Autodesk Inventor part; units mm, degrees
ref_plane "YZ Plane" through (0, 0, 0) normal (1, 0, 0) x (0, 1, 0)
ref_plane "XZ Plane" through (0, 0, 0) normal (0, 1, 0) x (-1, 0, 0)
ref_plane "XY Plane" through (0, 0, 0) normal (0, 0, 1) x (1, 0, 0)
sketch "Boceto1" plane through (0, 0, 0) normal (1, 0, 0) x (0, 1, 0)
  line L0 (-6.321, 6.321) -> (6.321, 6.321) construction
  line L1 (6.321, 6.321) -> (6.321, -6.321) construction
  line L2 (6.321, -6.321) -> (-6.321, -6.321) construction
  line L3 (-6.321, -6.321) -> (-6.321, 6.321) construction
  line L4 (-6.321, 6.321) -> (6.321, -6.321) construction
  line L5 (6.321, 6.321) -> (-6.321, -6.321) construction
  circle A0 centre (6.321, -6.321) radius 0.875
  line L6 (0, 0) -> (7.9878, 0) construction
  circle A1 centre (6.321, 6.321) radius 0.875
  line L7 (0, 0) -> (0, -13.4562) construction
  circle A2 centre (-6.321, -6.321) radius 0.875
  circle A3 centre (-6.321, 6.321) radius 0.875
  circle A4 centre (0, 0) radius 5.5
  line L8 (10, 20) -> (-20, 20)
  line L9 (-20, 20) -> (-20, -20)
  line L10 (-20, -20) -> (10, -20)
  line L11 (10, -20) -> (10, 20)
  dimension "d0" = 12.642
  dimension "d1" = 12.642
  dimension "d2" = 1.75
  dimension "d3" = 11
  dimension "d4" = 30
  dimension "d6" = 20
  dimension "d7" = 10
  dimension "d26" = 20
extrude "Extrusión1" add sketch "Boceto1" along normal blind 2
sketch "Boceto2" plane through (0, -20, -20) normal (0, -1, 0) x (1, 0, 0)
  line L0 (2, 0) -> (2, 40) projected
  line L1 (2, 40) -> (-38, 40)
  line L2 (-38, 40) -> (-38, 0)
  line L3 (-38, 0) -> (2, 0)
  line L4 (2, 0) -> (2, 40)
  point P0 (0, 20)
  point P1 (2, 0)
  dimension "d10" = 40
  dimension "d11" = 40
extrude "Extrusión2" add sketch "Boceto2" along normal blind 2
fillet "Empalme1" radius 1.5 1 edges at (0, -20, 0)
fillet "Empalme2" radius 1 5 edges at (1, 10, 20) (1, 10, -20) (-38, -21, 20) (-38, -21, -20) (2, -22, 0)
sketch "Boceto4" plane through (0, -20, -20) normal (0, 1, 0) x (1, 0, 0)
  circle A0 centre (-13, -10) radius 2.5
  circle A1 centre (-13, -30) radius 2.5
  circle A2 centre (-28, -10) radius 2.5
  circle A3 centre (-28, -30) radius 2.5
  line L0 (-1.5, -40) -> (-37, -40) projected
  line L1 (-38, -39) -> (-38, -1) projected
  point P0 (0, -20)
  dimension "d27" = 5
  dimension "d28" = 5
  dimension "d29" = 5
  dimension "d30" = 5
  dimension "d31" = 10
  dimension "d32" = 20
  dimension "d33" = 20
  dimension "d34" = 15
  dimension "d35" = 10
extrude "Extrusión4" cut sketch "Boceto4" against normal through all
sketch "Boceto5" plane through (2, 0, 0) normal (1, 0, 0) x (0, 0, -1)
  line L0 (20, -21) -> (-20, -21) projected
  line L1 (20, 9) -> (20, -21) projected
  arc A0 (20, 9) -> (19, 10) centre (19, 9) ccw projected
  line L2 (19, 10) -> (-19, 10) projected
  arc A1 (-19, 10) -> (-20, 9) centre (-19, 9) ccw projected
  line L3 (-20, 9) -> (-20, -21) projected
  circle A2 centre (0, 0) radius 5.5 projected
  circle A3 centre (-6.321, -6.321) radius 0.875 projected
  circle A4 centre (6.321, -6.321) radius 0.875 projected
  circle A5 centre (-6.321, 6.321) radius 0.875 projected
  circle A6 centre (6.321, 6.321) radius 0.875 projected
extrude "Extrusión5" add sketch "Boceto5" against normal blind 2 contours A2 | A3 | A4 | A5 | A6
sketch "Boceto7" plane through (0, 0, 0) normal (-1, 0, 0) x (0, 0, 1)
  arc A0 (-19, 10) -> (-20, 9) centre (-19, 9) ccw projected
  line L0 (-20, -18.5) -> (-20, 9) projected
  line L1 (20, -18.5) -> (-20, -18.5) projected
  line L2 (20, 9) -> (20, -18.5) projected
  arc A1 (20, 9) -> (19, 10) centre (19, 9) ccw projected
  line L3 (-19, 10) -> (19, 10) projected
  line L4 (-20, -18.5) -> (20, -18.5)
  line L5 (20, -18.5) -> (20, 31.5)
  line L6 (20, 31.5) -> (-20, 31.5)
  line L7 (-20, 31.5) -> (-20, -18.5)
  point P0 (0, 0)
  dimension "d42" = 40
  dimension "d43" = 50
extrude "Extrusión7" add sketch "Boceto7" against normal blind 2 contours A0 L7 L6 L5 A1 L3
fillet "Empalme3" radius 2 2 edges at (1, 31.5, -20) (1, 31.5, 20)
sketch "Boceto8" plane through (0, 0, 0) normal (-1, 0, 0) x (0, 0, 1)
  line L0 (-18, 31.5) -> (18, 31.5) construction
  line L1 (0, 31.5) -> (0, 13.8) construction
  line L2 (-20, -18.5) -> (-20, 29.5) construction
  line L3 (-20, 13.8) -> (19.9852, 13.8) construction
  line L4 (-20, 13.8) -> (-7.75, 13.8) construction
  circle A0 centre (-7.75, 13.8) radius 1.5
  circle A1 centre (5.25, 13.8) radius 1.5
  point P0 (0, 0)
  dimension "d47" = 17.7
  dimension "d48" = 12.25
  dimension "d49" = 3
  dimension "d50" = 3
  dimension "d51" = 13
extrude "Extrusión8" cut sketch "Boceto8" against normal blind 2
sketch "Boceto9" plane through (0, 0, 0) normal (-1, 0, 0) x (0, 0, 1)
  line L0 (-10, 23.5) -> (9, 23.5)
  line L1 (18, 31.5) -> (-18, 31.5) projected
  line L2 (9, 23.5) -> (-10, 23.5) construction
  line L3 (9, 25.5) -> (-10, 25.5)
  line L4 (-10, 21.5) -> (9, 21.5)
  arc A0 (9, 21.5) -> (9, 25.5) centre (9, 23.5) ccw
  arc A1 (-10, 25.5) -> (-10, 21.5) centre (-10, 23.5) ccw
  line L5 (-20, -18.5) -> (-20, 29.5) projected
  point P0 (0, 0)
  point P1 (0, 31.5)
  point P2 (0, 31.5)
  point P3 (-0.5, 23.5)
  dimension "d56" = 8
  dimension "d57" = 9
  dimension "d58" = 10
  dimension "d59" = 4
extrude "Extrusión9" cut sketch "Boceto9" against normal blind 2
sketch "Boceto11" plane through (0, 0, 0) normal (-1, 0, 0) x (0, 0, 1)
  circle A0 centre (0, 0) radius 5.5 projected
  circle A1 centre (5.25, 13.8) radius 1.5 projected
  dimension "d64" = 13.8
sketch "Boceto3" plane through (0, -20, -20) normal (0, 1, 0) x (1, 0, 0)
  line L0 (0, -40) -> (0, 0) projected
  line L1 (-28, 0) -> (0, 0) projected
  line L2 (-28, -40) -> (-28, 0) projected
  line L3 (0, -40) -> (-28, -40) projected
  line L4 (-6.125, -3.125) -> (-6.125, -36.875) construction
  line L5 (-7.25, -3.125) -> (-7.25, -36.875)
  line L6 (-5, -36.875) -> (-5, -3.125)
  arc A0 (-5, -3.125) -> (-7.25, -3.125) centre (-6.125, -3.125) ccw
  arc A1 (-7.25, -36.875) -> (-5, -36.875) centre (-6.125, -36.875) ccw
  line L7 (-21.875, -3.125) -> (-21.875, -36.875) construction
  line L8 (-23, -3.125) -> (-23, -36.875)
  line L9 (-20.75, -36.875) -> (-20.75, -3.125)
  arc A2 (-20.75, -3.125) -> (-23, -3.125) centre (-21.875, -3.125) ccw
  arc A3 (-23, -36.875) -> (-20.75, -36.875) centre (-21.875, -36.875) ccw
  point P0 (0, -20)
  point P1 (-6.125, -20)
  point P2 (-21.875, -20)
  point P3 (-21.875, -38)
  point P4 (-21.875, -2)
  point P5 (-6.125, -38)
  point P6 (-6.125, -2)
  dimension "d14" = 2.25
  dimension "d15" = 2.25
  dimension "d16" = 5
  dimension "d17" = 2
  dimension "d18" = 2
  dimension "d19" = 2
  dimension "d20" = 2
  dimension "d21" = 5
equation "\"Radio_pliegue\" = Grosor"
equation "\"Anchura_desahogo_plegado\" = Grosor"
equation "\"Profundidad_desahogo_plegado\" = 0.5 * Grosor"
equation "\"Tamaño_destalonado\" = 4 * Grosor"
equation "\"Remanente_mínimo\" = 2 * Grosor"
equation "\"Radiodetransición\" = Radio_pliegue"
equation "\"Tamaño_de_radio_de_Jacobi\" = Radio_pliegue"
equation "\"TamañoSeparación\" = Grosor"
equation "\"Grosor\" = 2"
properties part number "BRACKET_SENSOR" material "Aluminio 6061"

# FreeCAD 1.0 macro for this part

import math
import FreeCAD as App
import Part
import Sketcher


def edges_at(feature, points):
    """Names of the edges that pass closest to the given points."""
    edges = feature.Shape.Edges
    near = lambda p: min(range(len(edges)), key=lambda i: edges[i].distToShape(Part.Vertex(*p))[0])
    return sorted({f"Edge{near(p) + 1}" for p in points})


def add_polygon(sketch, points):
    """Adds a closed chain of lines whose ends are joined by coincident constraints."""
    first, n = sketch.GeometryCount, len(points)
    for a, b in zip(points, points[1:] + points[:1]):
        sketch.addGeometry(Part.LineSegment(App.Vector(*a, 0), App.Vector(*b, 0)), False)
    for i in range(n):
        sketch.addConstraint(Sketcher.Constraint("Coincident", first + i, 2, first + (i + 1) % n, 1))

doc = App.newDocument("Part")
body = doc.addObject("PartDesign::Body", "Body")

# Sketch on YZ plane
sketch1 = body.newObject("Sketcher::SketchObject", "Sketch")
sketch1.AttachmentSupport = (doc.getObject("YZ_Plane"), [""])
sketch1.MapMode = "FlatFace"
add_polygon(sketch1, [(10, -20), (10, 20), (-20, 20), (-20, -20)])  # lines 0-3
sketch1.addGeometry(Part.Circle(App.Vector(-6.3, -6.3, 0), App.Vector(0, 0, 1), 0.9), False)  # 4
sketch1.addGeometry(Part.Circle(App.Vector(6.3, -6.3, 0), App.Vector(0, 0, 1), 0.9), False)  # 5
sketch1.addGeometry(Part.Circle(App.Vector(-6.3, 6.3, 0), App.Vector(0, 0, 1), 0.9), False)  # 6
sketch1.addGeometry(Part.Circle(App.Vector(0, 0, 0), App.Vector(0, 0, 1), 5.5), False)  # 7
sketch1.addGeometry(Part.Circle(App.Vector(6.3, 6.3, 0), App.Vector(0, 0, 1), 0.9), False)  # 8
sketch1.addConstraint([
    Sketcher.Constraint("Vertical", 0),
    Sketcher.Constraint("Horizontal", 1),
    Sketcher.Constraint("Vertical", 2),
    Sketcher.Constraint("Horizontal", 3),
    Sketcher.Constraint("Coincident", 7, 3, -1, 1),
    Sketcher.Constraint("Equal", 4, 5),
    Sketcher.Constraint("Equal", 5, 6),
    Sketcher.Constraint("Equal", 6, 8),
    Sketcher.Constraint("Symmetric", 5, 3, 6, 3, -1, 1),
    Sketcher.Constraint("Symmetric", 4, 3, 8, 3, -1, 1),
    Sketcher.Constraint("Symmetric", 4, 3, 5, 3, -2),
    Sketcher.Constraint("Diameter", 7, 11.0),
    Sketcher.Constraint("Diameter", 4, 1.75),
    Sketcher.Constraint("DistanceX", 1, 2, 1, 1, 30.0),
    Sketcher.Constraint("DistanceX", -1, 1, 0, 2, 10.0),
    Sketcher.Constraint("DistanceY", -1, 1, 0, 2, 20.0),
    Sketcher.Constraint("DistanceY", 2, 2, -1, 1, 20.0),
    Sketcher.Constraint("DistanceX", 4, 3, 5, 3, 12.642),
    Sketcher.Constraint("DistanceY", 4, 3, 6, 3, 12.642),
])
pad1 = body.newObject("PartDesign::Pad", "Pad")
pad1.Profile = sketch1
pad1.Length = 2

# Sketch on XZ plane
sketch2 = body.newObject("Sketcher::SketchObject", "Sketch001")
sketch2.AttachmentSupport = (doc.getObject("XZ_Plane"), [""])
sketch2.MapMode = "FlatFace"
sketch2.AttachmentOffset = App.Placement(App.Vector(0, 0, 20), App.Rotation())
add_polygon(sketch2, [(-38, -20), (2, -20), (2, 20), (-38, 20)])  # lines 0-3
sketch2.addConstraint([
    Sketcher.Constraint("Horizontal", 0),
    Sketcher.Constraint("Vertical", 1),
    Sketcher.Constraint("Horizontal", 2),
    Sketcher.Constraint("Vertical", 3),
    Sketcher.Constraint("Equal", 2, 1),
    Sketcher.Constraint("DistanceX", 0, 1, 0, 2, 40.0),
    Sketcher.Constraint("DistanceX", -1, 1, 0, 2, 2.0),
    Sketcher.Constraint("DistanceY", 0, 2, -1, 1, 20.0),
])
pad2 = body.newObject("PartDesign::Pad", "Pad001")
pad2.Profile = sketch2
pad2.Length = 2
doc.recompute()

fillet = body.newObject("PartDesign::Fillet", "Fillet")
fillet.Base = (pad2, edges_at(pad2, [(0, -20, 0)]))
fillet.Radius = 1.5
doc.recompute()

fillet2 = body.newObject("PartDesign::Fillet", "Fillet001")
fillet2.Base = (fillet, edges_at(fillet, [
    (1, 10, 20),
    (1, 10, -20),
    (-38, -21, 20),
    (-38, -21, -20),
    (2, -22, 0),
]))
fillet2.Radius = 1

# Sketch on XZ plane
sketch3 = body.newObject("Sketcher::SketchObject", "Sketch002")
sketch3.AttachmentSupport = (doc.getObject("XZ_Plane"), [""])
sketch3.MapMode = "FlatFace"
sketch3.AttachmentOffset = App.Placement(App.Vector(0, 0, 20), App.Rotation())
sketch3.addGeometry([
    Part.Circle(App.Vector(-13, -10, 0), App.Vector(0, 0, 1), 2.5),
    Part.Circle(App.Vector(-13, 10, 0), App.Vector(0, 0, 1), 2.5),
    Part.Circle(App.Vector(-28, -10, 0), App.Vector(0, 0, 1), 2.5),
    Part.Circle(App.Vector(-28, 10, 0), App.Vector(0, 0, 1), 2.5),
], False)
sketch3.addConstraint([
    Sketcher.Constraint("Equal", 0, 1),
    Sketcher.Constraint("Equal", 1, 2),
    Sketcher.Constraint("Equal", 2, 3),
    Sketcher.Constraint("Symmetric", 0, 3, 1, 3, -1),
    Sketcher.Constraint("Symmetric", 2, 3, 3, 3, -1),
    Sketcher.Constraint("Horizontal", 0, 3, 2, 3),
    Sketcher.Constraint("Diameter", 0, 5.0),
    Sketcher.Constraint("DistanceY", 0, 3, -1, 1, 10.0),
    Sketcher.Constraint("DistanceX", 2, 3, 0, 3, 15.0),
    Sketcher.Constraint("DistanceX", 0, 3, -1, 1, 13.0),
])
pocket1 = body.newObject("PartDesign::Pocket", "Pocket")
pocket1.Profile = sketch3
pocket1.Type = "ThroughAll"
pocket1.Reversed = True

# Sketch on YZ plane
sketch4 = body.newObject("Sketcher::SketchObject", "Sketch003")
sketch4.AttachmentSupport = (doc.getObject("YZ_Plane"), [""])
sketch4.MapMode = "FlatFace"
sketch4.AttachmentOffset = App.Placement(App.Vector(0, 0, 2), App.Rotation())
sketch4.addGeometry([
    Part.Circle(App.Vector(0, 0, 0), App.Vector(0, 0, 1), 5.5),  # 0
    Part.Circle(App.Vector(-6.3, 6.3, 0), App.Vector(0, 0, 1), 0.9),  # 1
    Part.Circle(App.Vector(-6.3, -6.3, 0), App.Vector(0, 0, 1), 0.9),  # 2
    Part.Circle(App.Vector(6.3, 6.3, 0), App.Vector(0, 0, 1), 0.9),  # 3
    Part.Circle(App.Vector(6.3, -6.3, 0), App.Vector(0, 0, 1), 0.9),  # 4
], False)
sketch4.addConstraint([
    Sketcher.Constraint("Coincident", 0, 3, -1, 1),
    Sketcher.Constraint("Equal", 1, 2),
    Sketcher.Constraint("Equal", 2, 3),
    Sketcher.Constraint("Equal", 3, 4),
    Sketcher.Constraint("Symmetric", 2, 3, 3, 3, -1, 1),
    Sketcher.Constraint("Symmetric", 1, 3, 4, 3, -1, 1),
    Sketcher.Constraint("Symmetric", 1, 3, 3, 3, -2),
    Sketcher.Constraint("Diameter", 0, 11.0),
    Sketcher.Constraint("Diameter", 1, 1.75),
    Sketcher.Constraint("DistanceX", 1, 3, -1, 1, 6.321),
    Sketcher.Constraint("DistanceY", -1, 1, 1, 3, 6.321),
])
pad3 = body.newObject("PartDesign::Pad", "Pad002")
pad3.Profile = sketch4
pad3.Length = 2
pad3.Reversed = True

# Sketch on YZ plane
sketch5 = body.newObject("Sketcher::SketchObject", "Sketch004")
sketch5.AttachmentSupport = (doc.getObject("YZ_Plane"), [""])
sketch5.MapMode = "FlatFace"
sketch5.addGeometry([
    Part.ArcOfCircle(Part.Circle(App.Vector(9, -19, 0), App.Vector(0, 0, 1), 1), math.radians(-90), math.radians(0)),  # 0
    Part.LineSegment(App.Vector(10, -19, 0), App.Vector(10, 19, 0)),  # 1
    Part.ArcOfCircle(Part.Circle(App.Vector(9, 19, 0), App.Vector(0, 0, 1), 1), math.radians(0), math.radians(90)),  # 2
    Part.LineSegment(App.Vector(9, 20, 0), App.Vector(31.5, 20, 0)),  # 3
    Part.LineSegment(App.Vector(31.5, 20, 0), App.Vector(31.5, -20, 0)),  # 4
    Part.LineSegment(App.Vector(31.5, -20, 0), App.Vector(9, -20, 0)),  # 5
], False)
sketch5.addConstraint([
    Sketcher.Constraint("Tangent", 0, 2, 1, 1),
    Sketcher.Constraint("Tangent", 1, 2, 2, 1),
    Sketcher.Constraint("Tangent", 2, 2, 3, 1),
    Sketcher.Constraint("Coincident", 3, 2, 4, 1),
    Sketcher.Constraint("Coincident", 4, 2, 5, 1),
    Sketcher.Constraint("Tangent", 5, 2, 0, 1),
    Sketcher.Constraint("Vertical", 1),
    Sketcher.Constraint("Horizontal", 3),
    Sketcher.Constraint("Vertical", 4),
    Sketcher.Constraint("Horizontal", 5),
    Sketcher.Constraint("Equal", 0, 2),
    Sketcher.Constraint("DistanceY", 4, 2, 4, 1, 40.0),
    Sketcher.Constraint("Radius", 0, 1.0),
    Sketcher.Constraint("DistanceX", 3, 1, 3, 2, 22.5),
    Sketcher.Constraint("DistanceX", -1, 1, 0, 3, 9.0),
    Sketcher.Constraint("DistanceY", 0, 3, -1, 1, 19.0),
])
pad4 = body.newObject("PartDesign::Pad", "Pad003")
pad4.Profile = sketch5
pad4.Length = 2
doc.recompute()

fillet3 = body.newObject("PartDesign::Fillet", "Fillet002")
fillet3.Base = (pad4, edges_at(pad4, [(1, 31.5, -20), (1, 31.5, 20)]))
fillet3.Radius = 2

# Sketch on YZ plane
sketch6 = body.newObject("Sketcher::SketchObject", "Sketch005")
sketch6.AttachmentSupport = (doc.getObject("YZ_Plane"), [""])
sketch6.MapMode = "FlatFace"
sketch6.addGeometry([
    Part.Circle(App.Vector(13.8, -7.8, 0), App.Vector(0, 0, 1), 1.5),
    Part.Circle(App.Vector(13.8, 5.2, 0), App.Vector(0, 0, 1), 1.5),
], False)
sketch6.addConstraint([
    Sketcher.Constraint("Equal", 0, 1),
    Sketcher.Constraint("Vertical", 0, 3, 1, 3),
    Sketcher.Constraint("Diameter", 0, 3.0),
    Sketcher.Constraint("DistanceY", 0, 3, 1, 3, 13.0),
    Sketcher.Constraint("DistanceX", -1, 1, 0, 3, 13.8),
    Sketcher.Constraint("DistanceY", 0, 3, -1, 1, 7.75),
])
pocket2 = body.newObject("PartDesign::Pocket", "Pocket001")
pocket2.Profile = sketch6
pocket2.Length = 2
pocket2.Reversed = True

# Sketch on YZ plane
sketch7 = body.newObject("Sketcher::SketchObject", "Sketch006")
sketch7.AttachmentSupport = (doc.getObject("YZ_Plane"), [""])
sketch7.MapMode = "FlatFace"
sketch7.addGeometry([
    Part.ArcOfCircle(Part.Circle(App.Vector(23.5, 9, 0), App.Vector(0, 0, 1), 2), math.radians(0), math.radians(180)),
    Part.LineSegment(App.Vector(25.5, 9, 0), App.Vector(25.5, -10, 0)),
    Part.ArcOfCircle(Part.Circle(App.Vector(23.5, -10, 0), App.Vector(0, 0, 1), 2), math.radians(180), math.radians(360)),
    Part.LineSegment(App.Vector(21.5, -10, 0), App.Vector(21.5, 9, 0)),
], False)
sketch7.addConstraint([
    Sketcher.Constraint("Tangent", 0, 1, 1, 1),
    Sketcher.Constraint("Tangent", 1, 2, 2, 2),
    Sketcher.Constraint("Tangent", 2, 1, 3, 1),
    Sketcher.Constraint("Tangent", 3, 2, 0, 2),
    Sketcher.Constraint("Vertical", 1),
    Sketcher.Constraint("Vertical", 3),
    Sketcher.Constraint("Radius", 0, 2.0),
    Sketcher.Constraint("DistanceY", -1, 1, 0, 3, 9.0),
    Sketcher.Constraint("DistanceY", 2, 3, -1, 1, 10.0),
    Sketcher.Constraint("DistanceX", -1, 1, 0, 3, 23.5),
])
pocket3 = body.newObject("PartDesign::Pocket", "Pocket002")
pocket3.Profile = sketch7
pocket3.Length = 2
pocket3.Reversed = True

doc.recompute()
